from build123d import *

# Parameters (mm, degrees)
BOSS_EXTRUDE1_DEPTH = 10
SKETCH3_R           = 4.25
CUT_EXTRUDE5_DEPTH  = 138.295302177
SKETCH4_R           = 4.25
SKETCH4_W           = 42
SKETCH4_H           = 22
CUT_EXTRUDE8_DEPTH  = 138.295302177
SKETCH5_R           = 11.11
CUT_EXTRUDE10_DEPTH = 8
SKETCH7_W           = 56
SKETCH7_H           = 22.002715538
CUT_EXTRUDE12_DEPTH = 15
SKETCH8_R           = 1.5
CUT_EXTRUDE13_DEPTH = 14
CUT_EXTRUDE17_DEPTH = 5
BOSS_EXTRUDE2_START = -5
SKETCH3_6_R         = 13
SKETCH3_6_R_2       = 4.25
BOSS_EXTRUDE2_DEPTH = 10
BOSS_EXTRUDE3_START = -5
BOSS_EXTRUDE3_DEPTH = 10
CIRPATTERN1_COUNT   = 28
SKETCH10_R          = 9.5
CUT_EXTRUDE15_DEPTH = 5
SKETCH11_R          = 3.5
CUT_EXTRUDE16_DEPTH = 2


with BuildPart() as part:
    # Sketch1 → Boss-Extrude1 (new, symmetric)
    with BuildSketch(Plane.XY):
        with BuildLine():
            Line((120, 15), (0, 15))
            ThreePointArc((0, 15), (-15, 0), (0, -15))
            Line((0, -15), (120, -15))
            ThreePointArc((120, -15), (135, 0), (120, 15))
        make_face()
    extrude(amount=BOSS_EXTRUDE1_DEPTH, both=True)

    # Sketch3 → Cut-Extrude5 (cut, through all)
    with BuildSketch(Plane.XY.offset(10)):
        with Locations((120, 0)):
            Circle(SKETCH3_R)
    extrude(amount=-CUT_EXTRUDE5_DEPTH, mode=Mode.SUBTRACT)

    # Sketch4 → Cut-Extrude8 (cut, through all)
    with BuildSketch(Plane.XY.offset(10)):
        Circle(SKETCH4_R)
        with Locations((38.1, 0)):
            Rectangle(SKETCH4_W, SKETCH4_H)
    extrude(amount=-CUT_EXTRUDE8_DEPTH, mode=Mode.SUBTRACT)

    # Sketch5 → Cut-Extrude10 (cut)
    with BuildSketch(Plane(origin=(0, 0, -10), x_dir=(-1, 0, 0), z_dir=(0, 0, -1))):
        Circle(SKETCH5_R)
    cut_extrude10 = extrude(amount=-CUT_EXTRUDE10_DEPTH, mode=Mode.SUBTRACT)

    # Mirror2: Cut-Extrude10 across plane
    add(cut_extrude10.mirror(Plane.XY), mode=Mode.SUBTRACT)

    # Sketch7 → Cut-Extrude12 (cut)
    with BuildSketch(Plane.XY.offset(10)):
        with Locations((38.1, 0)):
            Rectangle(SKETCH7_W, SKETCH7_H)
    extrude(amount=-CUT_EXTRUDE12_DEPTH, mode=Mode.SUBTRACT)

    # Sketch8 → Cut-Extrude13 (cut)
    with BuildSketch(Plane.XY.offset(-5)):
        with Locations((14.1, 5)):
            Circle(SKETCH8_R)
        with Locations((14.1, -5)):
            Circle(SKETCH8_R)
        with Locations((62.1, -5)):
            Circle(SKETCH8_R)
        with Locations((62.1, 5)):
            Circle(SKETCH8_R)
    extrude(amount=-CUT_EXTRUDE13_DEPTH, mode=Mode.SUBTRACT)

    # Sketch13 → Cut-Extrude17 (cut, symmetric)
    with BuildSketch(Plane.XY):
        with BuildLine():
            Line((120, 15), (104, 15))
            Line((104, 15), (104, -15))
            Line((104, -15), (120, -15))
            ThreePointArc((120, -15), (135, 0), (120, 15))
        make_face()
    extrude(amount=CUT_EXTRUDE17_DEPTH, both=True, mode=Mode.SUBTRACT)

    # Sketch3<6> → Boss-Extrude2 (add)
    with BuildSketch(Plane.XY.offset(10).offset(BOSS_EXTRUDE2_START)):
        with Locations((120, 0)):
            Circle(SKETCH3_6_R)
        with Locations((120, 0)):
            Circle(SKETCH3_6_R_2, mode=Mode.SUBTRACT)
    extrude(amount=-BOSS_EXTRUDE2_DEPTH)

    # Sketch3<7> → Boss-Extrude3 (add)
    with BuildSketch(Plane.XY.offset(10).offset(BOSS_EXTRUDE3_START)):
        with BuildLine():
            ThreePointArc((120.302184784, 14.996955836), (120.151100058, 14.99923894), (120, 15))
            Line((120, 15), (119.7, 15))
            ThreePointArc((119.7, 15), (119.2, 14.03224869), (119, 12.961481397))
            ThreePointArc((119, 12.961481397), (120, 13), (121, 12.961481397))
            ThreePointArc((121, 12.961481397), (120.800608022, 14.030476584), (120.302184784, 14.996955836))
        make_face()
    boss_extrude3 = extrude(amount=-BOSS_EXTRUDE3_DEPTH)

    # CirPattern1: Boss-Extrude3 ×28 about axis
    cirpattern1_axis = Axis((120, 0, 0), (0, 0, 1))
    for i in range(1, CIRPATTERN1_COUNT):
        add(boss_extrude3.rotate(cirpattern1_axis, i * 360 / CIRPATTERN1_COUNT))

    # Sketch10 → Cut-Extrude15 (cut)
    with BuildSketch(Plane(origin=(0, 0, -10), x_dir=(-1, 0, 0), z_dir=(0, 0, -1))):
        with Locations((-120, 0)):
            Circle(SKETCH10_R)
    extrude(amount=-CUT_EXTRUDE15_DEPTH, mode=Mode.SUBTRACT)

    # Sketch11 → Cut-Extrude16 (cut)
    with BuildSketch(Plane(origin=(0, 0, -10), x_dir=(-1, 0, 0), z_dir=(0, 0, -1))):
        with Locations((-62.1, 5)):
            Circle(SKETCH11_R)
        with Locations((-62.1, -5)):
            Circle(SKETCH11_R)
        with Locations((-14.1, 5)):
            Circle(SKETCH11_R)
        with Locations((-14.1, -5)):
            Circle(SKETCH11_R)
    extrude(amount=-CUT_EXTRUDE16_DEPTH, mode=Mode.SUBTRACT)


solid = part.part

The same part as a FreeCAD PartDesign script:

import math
import FreeCAD as App
import Part
import Sketcher

V = App.Vector
Q = App.Units.Quantity


def add_polygon(sketch, points):
    """Adds a closed chain of lines whose ends are joined by coincident constraints."""
    first, n = sketch.GeometryCount, len(points)
    for a, b in zip(points, points[1:] + points[:1]):
        sketch.addGeometry(Part.LineSegment(App.Vector(*a, 0), App.Vector(*b, 0)), False)
    for i in range(n):
        sketch.addConstraint(Sketcher.Constraint("Coincident", first + i, 2, first + (i + 1) % n, 1))

doc = App.newDocument("Part")
body = doc.addObject("PartDesign::Body", "Body")

sketch1 = body.newObject("Sketcher::SketchObject", "Sketch")
sketch1.AttachmentSupport = (doc.getObject("XY_Plane"), [""])
sketch1.MapMode = "FlatFace"
sketch1.addGeometry([
    Part.LineSegment(V(120, 15, 0), V(0, 15, 0)),
    Part.ArcOfCircle(Part.Circle(V(0, 0, 0), V(0, 0, 1), 15), math.radians(90), math.radians(270)),
    Part.LineSegment(V(0, -15, 0), V(120, -15, 0)),
    Part.ArcOfCircle(Part.Circle(V(120, 0, 0), V(0, 0, 1), 15), math.radians(-90), math.radians(90)),
], False)
sketch1.addConstraint([
    Sketcher.Constraint("Tangent", 0, 2, 1, 1),
    Sketcher.Constraint("Tangent", 1, 2, 2, 1),
    Sketcher.Constraint("Tangent", 2, 2, 3, 1),
    Sketcher.Constraint("Tangent", 3, 2, 0, 1),
    Sketcher.Constraint("Horizontal", 0),
    Sketcher.Constraint("Horizontal", 2),
    Sketcher.Constraint("Coincident", 1, 3, -1, 1),
    Sketcher.Constraint("Radius", 1, Q("15 mm")),
    Sketcher.Constraint("DistanceX", 0, 2, 0, 1, Q("120 mm")),
])
pad1 = body.newObject("PartDesign::Pad", "Pad")
pad1.Profile = sketch1
pad1.Length = 20
pad1.Midplane = True

sketch2 = body.newObject("Sketcher::SketchObject", "Sketch001")
sketch2.AttachmentSupport = (doc.getObject("XY_Plane"), [""])
sketch2.MapMode = "FlatFace"
sketch2.AttachmentOffset = App.Placement(V(0, 0, 10), App.Rotation())
sketch2.addGeometry(Part.Circle(V(120, 0, 0), V(0, 0, 1), 4.25), False)
sketch2.addConstraint([
    Sketcher.Constraint("PointOnObject", 0, 3, -1),
    Sketcher.Constraint("Diameter", 0, Q("8.5 mm")),
    Sketcher.Constraint("DistanceX", -1, 1, 0, 3, Q("120 mm")),
])
pocket1 = body.newObject("PartDesign::Pocket", "Pocket")
pocket1.Profile = sketch2
pocket1.Type = "ThroughAll"

sketch3 = body.newObject("Sketcher::SketchObject", "Sketch002")
sketch3.AttachmentSupport = (doc.getObject("XY_Plane"), [""])
sketch3.MapMode = "FlatFace"
sketch3.AttachmentOffset = App.Placement(V(0, 0, 10), App.Rotation())
sketch3.addGeometry(Part.Circle(V(0, 0, 0), V(0, 0, 1), 4.25), False)
add_polygon(sketch3, [(17.1, 11), (17.1, -11), (59.1, -11), (59.1, 11)])
sketch3.addConstraint([
    Sketcher.Constraint("Vertical", 1),
    Sketcher.Constraint("Horizontal", 2),
    Sketcher.Constraint("Vertical", 3),
    Sketcher.Constraint("Horizontal", 4),
    Sketcher.Constraint("Coincident", 0, 3, -1, 1),
    Sketcher.Constraint("Diameter", 0, Q("8.5 mm")),
    Sketcher.Constraint("DistanceX", 2, 1, 2, 2, Q("42 mm")),
    Sketcher.Constraint("DistanceY", 1, 2, 1, 1, Q("22 mm")),
    Sketcher.Constraint("DistanceY", 1, 2, -1, 1, Q("11 mm")),
    Sketcher.Constraint("DistanceX", -1, 1, 1, 2, Q("17.1 mm")),
])
pocket2 = body.newObject("PartDesign::Pocket", "Pocket001")
pocket2.Profile = sketch3
pocket2.Type = "ThroughAll"

sketch4 = body.newObject("Sketcher::SketchObject", "Sketch003")
sketch4.AttachmentSupport = (doc.getObject("XY_Plane"), [""])
sketch4.MapMode = "FlatFace"
sketch4.AttachmentOffset = App.Placement(V(0, 0, -10), App.Rotation())
sketch4.addGeometry(Part.Circle(V(0, 0, 0), V(0, 0, 1), 11.11), False)
sketch4.addConstraint([
    Sketcher.Constraint("Coincident", 0, 3, -1, 1),
    Sketcher.Constraint("Diameter", 0, Q("22.22 mm")),
])
pocket3 = body.newObject("PartDesign::Pocket", "Pocket002")
pocket3.Profile = sketch4
pocket3.Length = 8
pocket3.Reversed = True
doc.recompute()

mirrored = body.newObject("PartDesign::Mirrored", "Mirrored")
mirrored.Originals = [pocket3]
mirrored.MirrorPlane = (doc.getObject("XY_Plane"), [""])
body.Tip = mirrored

sketch5 = body.newObject("Sketcher::SketchObject", "Sketch004")
sketch5.AttachmentSupport = (doc.getObject("XY_Plane"), [""])
sketch5.MapMode = "FlatFace"
sketch5.AttachmentOffset = App.Placement(V(0, 0, 10), App.Rotation())
add_polygon(sketch5, [(10.1, 11.001358), (10.1, -11.001358), (66.1, -11.001358), (66.1, 11.001358)])
sketch5.addConstraint([
    Sketcher.Constraint("Vertical", 0),
    Sketcher.Constraint("Horizontal", 1),
    Sketcher.Constraint("Vertical", 2),
    Sketcher.Constraint("Horizontal", 3),
    Sketcher.Constraint("DistanceX", 1, 1, 1, 2, Q("56 mm")),
    Sketcher.Constraint("DistanceX", -1, 1, 0, 2, Q("10.1 mm")),
    Sketcher.Constraint("DistanceY", 0, 2, 0, 1, Q("22.002716 mm")),
    Sketcher.Constraint("DistanceY", 0, 2, -1, 1, Q("11.001358 mm")),
])
pocket4 = body.newObject("PartDesign::Pocket", "Pocket003")
pocket4.Profile = sketch5
pocket4.Length = 15

sketch6 = body.newObject("Sketcher::SketchObject", "Sketch005")
sketch6.AttachmentSupport = (doc.getObject("XY_Plane"), [""])
sketch6.MapMode = "FlatFace"
sketch6.AttachmentOffset = App.Placement(V(0, 0, -5), App.Rotation())
sketch6.addGeometry([
    Part.Circle(V(14.1, 5, 0), V(0, 0, 1), 1.5),
    Part.Circle(V(14.1, -5, 0), V(0, 0, 1), 1.5),
    Part.Circle(V(62.1, -5, 0), V(0, 0, 1), 1.5),
    Part.Circle(V(62.1, 5, 0), V(0, 0, 1), 1.5),
], False)
sketch6.addConstraint([
    Sketcher.Constraint("Equal", 0, 1),
    Sketcher.Constraint("Equal", 1, 2),
    Sketcher.Constraint("Equal", 2, 3),
    Sketcher.Constraint("Symmetric", 0, 3, 1, 3, -1),
    Sketcher.Constraint("Symmetric", 2, 3, 3, 3, -1),
    Sketcher.Constraint("Horizontal", 1, 3, 2, 3),
    Sketcher.Constraint("Diameter", 0, Q("3 mm")),
    Sketcher.Constraint("DistanceY", -1, 1, 0, 3, Q("5 mm")),
    Sketcher.Constraint("DistanceX", 1, 3, 2, 3, Q("48 mm")),
    Sketcher.Constraint("DistanceX", -1, 1, 0, 3, Q("14.1 mm")),
])
pocket5 = body.newObject("PartDesign::Pocket", "Pocket004")
pocket5.Profile = sketch6
pocket5.Length = 14

sketch7 = body.newObject("Sketcher::SketchObject", "Sketch006")
sketch7.AttachmentSupport = (doc.getObject("XY_Plane"), [""])
sketch7.MapMode = "FlatFace"
sketch7.addGeometry([
    Part.LineSegment(V(120, 15, 0), V(104, 15, 0)),
    Part.LineSegment(V(104, 15, 0), V(104, -15, 0)),
    Part.LineSegment(V(104, -15, 0), V(120, -15, 0)),
    Part.ArcOfCircle(Part.Circle(V(120, 0, 0), V(0, 0, 1), 15), math.radians(-90), math.radians(90)),
], False)
sketch7.addConstraint([
    Sketcher.Constraint("Coincident", 0, 2, 1, 1),
    Sketcher.Constraint("Coincident", 1, 2, 2, 1),
    Sketcher.Constraint("Tangent", 2, 2, 3, 1),
    Sketcher.Constraint("Tangent", 3, 2, 0, 1),
    Sketcher.Constraint("Horizontal", 0),
    Sketcher.Constraint("Vertical", 1),
    Sketcher.Constraint("Horizontal", 2),
    Sketcher.Constraint("PointOnObject", 3, 3, -1),
    Sketcher.Constraint("Radius", 3, Q("15 mm")),
    Sketcher.Constraint("DistanceX", 0, 2, 0, 1, Q("16 mm")),
    Sketcher.Constraint("DistanceX", -1, 1, 3, 3, Q("120 mm")),
])
pocket6 = body.newObject("PartDesign::Pocket", "Pocket005")
pocket6.Profile = sketch7
pocket6.Length = 10
pocket6.Midplane = True

sketch8 = body.newObject("Sketcher::SketchObject", "Sketch007")
sketch8.AttachmentSupport = (doc.getObject("XY_Plane"), [""])
sketch8.MapMode = "FlatFace"
sketch8.AttachmentOffset = App.Placement(V(0, 0, 5), App.Rotation())
sketch8.addGeometry([
    Part.Circle(V(120, 0, 0), V(0, 0, 1), 13),
    Part.Circle(V(120, 0, 0), V(0, 0, 1), 4.25),
], False)
sketch8.addConstraint([
    Sketcher.Constraint("Coincident", 1, 3, 0, 3),
    Sketcher.Constraint("PointOnObject", 0, 3, -1),
    Sketcher.Constraint("Diameter", 0, Q("26 mm")),
    Sketcher.Constraint("Diameter", 1, Q("8.5 mm")),
    Sketcher.Constraint("DistanceX", -1, 1, 0, 3, Q("120 mm")),
])
pad2 = body.newObject("PartDesign::Pad", "Pad001")
pad2.Profile = sketch8
pad2.Length = 10
pad2.Reversed = True

sketch9 = body.newObject("Sketcher::SketchObject", "Sketch008")
sketch9.AttachmentSupport = (doc.getObject("XY_Plane"), [""])
sketch9.MapMode = "FlatFace"
sketch9.AttachmentOffset = App.Placement(V(0, 0, 5), App.Rotation())
sketch9.addGeometry([
    Part.ArcOfCircle(Part.Circle(V(120, 0.000008, 0), V(0, 0, 1), 14.999992), math.radians(88.845661), math.radians(90)),
    Part.LineSegment(V(120, 15, 0), V(119.7, 15, 0)),
    Part.ArcOfCircle(Part.Circle(V(122.737965, 12.817359, 0), V(0, 0, 1), 3.740742), math.radians(144.304456), math.radians(177.791974)),
    Part.ArcOfCircle(Part.Circle(V(120, 0, 0), V(0, 0, 1), 13), math.radians(85.588274), math.radians(94.411726)),
    Part.ArcOfCircle(Part.Circle(V(117.262035, 12.817359, 0), V(0, 0, 1), 3.740742), math.radians(2.208026), math.radians(35.638152)),
], False)
sketch9.addConstraint([
    Sketcher.Constraint("Tangent", 0, 2, 1, 1),
    Sketcher.Constraint("Coincident", 1, 2, 2, 1),
    Sketcher.Constraint("Coincident", 2, 2, 3, 2),
    Sketcher.Constraint("Coincident", 3, 1, 4, 1),
    Sketcher.Constraint("Coincident", 4, 2, 0, 1),
    Sketcher.Constraint("Horizontal", 1),
    Sketcher.Constraint("Coincident", 3, 3, 0, 3),
    Sketcher.Constraint("Equal", 2, 4),
    Sketcher.Constraint("PointOnObject", 3, 3, -1),
    Sketcher.Constraint("Horizontal", 2, 3, 4, 3),
    Sketcher.Constraint("Horizontal", 2, 2, 3, 1),
    Sketcher.Constraint("Radius", 3, Q("13 mm")),
    Sketcher.Constraint("DistanceX", 1, 2, 1, 1, Q("0.3 mm")),
    Sketcher.Constraint("DistanceX", -1, 1, 0, 3, Q("120 mm")),
    Sketcher.Constraint("DistanceY", -1, 1, 0, 2, Q("15 mm")),
    Sketcher.Constraint("DistanceX", -1, 1, 2, 2, Q("119 mm")),
    Sketcher.Constraint("Radius", 2, Q("3.740742 mm")),
])
pad3 = body.newObject("PartDesign::Pad", "Pad002")
pad3.Profile = sketch9
pad3.Length = 10
pad3.Reversed = True
doc.recompute()

datumline = body.newObject("PartDesign::Line", "DatumLine")
datumline.Placement = App.Placement(V(120, 0, 0), App.Rotation(V(0, 0, 1), V(0, 0, 1)))
polarpattern = body.newObject("PartDesign::PolarPattern", "PolarPattern")
polarpattern.Originals = [pad3]
polarpattern.Axis = (datumline, [""])
polarpattern.Angle = 360
polarpattern.Occurrences = 28
body.Tip = polarpattern

sketch10 = body.newObject("Sketcher::SketchObject", "Sketch009")
sketch10.AttachmentSupport = (doc.getObject("XY_Plane"), [""])
sketch10.MapMode = "FlatFace"
sketch10.AttachmentOffset = App.Placement(V(0, 0, -10), App.Rotation())
sketch10.addGeometry(Part.Circle(V(120, 0, 0), V(0, 0, 1), 9.5), False)
sketch10.addConstraint([
    Sketcher.Constraint("PointOnObject", 0, 3, -1),
    Sketcher.Constraint("Diameter", 0, Q("19 mm")),
    Sketcher.Constraint("DistanceX", -1, 1, 0, 3, Q("120 mm")),
])
pocket7 = body.newObject("PartDesign::Pocket", "Pocket006")
pocket7.Profile = sketch10
pocket7.Length = 5
pocket7.Reversed = True

sketch11 = body.newObject("Sketcher::SketchObject", "Sketch010")
sketch11.AttachmentSupport = (doc.getObject("XY_Plane"), [""])
sketch11.MapMode = "FlatFace"
sketch11.AttachmentOffset = App.Placement(V(0, 0, -10), App.Rotation())
sketch11.addGeometry([
    Part.Circle(V(62.1, 5, 0), V(0, 0, 1), 3.5),
    Part.Circle(V(62.1, -5, 0), V(0, 0, 1), 3.5),
    Part.Circle(V(14.1, 5, 0), V(0, 0, 1), 3.5),
    Part.Circle(V(14.1, -5, 0), V(0, 0, 1), 3.5),
], False)
sketch11.addConstraint([
    Sketcher.Constraint("Equal", 0, 1),
    Sketcher.Constraint("Equal", 1, 2),
    Sketcher.Constraint("Equal", 2, 3),
    Sketcher.Constraint("Symmetric", 0, 3, 1, 3, -1),
    Sketcher.Constraint("Symmetric", 2, 3, 3, 3, -1),
    Sketcher.Constraint("Horizontal", 0, 3, 2, 3),
    Sketcher.Constraint("Diameter", 0, Q("7 mm")),
    Sketcher.Constraint("DistanceY", -1, 1, 0, 3, Q("5 mm")),
    Sketcher.Constraint("DistanceX", 2, 3, 0, 3, Q("48 mm")),
    Sketcher.Constraint("DistanceX", -1, 1, 0, 3, Q("62.1 mm")),
])
pocket8 = body.newObject("PartDesign::Pocket", "Pocket007")
pocket8.Profile = sketch11
pocket8.Length = 2
pocket8.Reversed = True

doc.recompute()
